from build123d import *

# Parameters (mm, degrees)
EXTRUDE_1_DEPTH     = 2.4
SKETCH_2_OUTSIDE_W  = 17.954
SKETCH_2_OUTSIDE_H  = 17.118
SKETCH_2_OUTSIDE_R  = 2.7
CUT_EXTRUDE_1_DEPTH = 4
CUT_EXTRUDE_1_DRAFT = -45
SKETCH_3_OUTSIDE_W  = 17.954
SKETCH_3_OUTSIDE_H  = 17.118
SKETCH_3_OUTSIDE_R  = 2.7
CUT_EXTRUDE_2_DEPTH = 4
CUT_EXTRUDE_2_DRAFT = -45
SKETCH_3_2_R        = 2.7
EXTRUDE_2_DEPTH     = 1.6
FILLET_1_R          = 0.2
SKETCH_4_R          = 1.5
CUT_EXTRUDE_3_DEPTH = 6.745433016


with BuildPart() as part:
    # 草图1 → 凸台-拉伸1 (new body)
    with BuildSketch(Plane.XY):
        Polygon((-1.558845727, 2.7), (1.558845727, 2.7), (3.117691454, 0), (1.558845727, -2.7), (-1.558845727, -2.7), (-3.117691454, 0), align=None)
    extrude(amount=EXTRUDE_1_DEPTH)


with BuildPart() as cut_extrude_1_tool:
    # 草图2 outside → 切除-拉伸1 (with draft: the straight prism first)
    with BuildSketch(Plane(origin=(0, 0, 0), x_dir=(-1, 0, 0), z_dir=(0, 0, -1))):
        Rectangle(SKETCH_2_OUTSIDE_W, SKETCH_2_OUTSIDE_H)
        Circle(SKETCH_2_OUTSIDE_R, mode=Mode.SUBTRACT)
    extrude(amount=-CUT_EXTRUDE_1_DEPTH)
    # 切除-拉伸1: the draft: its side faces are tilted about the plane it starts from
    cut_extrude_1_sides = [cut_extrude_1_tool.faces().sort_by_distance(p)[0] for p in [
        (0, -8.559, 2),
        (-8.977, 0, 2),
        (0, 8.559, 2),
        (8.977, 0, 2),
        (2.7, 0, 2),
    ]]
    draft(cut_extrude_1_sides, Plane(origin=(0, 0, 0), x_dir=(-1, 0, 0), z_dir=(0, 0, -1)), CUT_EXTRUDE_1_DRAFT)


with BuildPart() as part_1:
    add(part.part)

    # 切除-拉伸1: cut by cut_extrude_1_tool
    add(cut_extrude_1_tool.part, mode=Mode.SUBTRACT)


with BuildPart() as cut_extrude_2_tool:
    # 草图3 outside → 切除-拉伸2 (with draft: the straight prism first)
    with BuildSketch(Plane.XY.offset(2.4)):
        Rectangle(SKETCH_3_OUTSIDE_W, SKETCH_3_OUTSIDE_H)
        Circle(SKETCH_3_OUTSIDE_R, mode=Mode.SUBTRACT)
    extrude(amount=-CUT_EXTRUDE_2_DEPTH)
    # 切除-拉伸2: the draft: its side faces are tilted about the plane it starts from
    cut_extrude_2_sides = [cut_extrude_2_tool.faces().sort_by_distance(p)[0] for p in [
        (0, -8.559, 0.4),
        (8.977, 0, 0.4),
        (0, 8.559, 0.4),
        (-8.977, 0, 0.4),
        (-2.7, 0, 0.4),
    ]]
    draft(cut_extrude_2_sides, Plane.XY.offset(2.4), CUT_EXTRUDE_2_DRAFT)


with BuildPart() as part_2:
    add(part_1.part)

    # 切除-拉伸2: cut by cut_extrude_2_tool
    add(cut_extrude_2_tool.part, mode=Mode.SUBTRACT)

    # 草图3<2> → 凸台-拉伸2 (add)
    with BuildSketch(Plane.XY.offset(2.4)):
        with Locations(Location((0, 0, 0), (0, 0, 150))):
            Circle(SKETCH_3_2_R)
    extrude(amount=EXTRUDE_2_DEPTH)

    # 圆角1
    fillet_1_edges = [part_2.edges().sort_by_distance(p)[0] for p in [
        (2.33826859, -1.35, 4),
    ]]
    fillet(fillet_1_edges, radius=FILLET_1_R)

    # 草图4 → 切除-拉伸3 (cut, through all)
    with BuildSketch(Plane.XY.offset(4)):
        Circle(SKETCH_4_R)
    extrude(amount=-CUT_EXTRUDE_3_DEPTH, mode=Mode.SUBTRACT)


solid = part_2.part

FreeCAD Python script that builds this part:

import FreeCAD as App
import Part
import Sketcher
Q = App.Units.Quantity


def edges_at(feature, points):
    """Names of the edges that pass closest to the given points."""
    edges = feature.Shape.Edges
    near = lambda p: min(range(len(edges)), key=lambda i: edges[i].distToShape(Part.Vertex(*p))[0])
    return sorted({f"Edge{near(p) + 1}" for p in points})


def faces_at(feature, points):
    """Names of the faces that lie closest to the given points."""
    faces = feature.Shape.Faces
    near = lambda p: min(range(len(faces)), key=lambda i: faces[i].distToShape(Part.Vertex(*p))[0])
    return sorted({f"Face{near(p) + 1}" for p in points})

doc = App.newDocument("Part")
body = doc.addObject("PartDesign::Body", "Body")

sketch1 = body.newObject("Sketcher::SketchObject", "Sketch")
sketch1.AttachmentSupport = (doc.getObject("XY_Plane"), [""])
sketch1.MapMode = "FlatFace"
sketch1.addGeometry([
    Part.LineSegment(App.Vector(1.558846, 2.7, 0), App.Vector(-1.558846, 2.7, 0)),
    Part.LineSegment(App.Vector(-1.558846, 2.7, 0), App.Vector(-3.117691, 0, 0)),
    Part.LineSegment(App.Vector(-3.117691, 0, 0), App.Vector(-1.558846, -2.7, 0)),
    Part.LineSegment(App.Vector(-1.558846, -2.7, 0), App.Vector(1.558846, -2.7, 0)),
    Part.LineSegment(App.Vector(1.558846, -2.7, 0), App.Vector(3.117691, 0, 0)),
    Part.LineSegment(App.Vector(3.117691, 0, 0), App.Vector(1.558846, 2.7, 0)),
], False)
sketch1.addConstraint([
    Sketcher.Constraint("Coincident", 0, 2, 1, 1),
    Sketcher.Constraint("Coincident", 1, 2, 2, 1),
    Sketcher.Constraint("Coincident", 2, 2, 3, 1),
    Sketcher.Constraint("Coincident", 3, 2, 4, 1),
    Sketcher.Constraint("Coincident", 4, 2, 5, 1),
    Sketcher.Constraint("Coincident", 5, 2, 0, 1),
    Sketcher.Constraint("Horizontal", 0),
    Sketcher.Constraint("Horizontal", 3),
    Sketcher.Constraint("Symmetric", 0, 2, 3, 2, -1, 1),
    Sketcher.Constraint("Symmetric", 1, 2, 4, 2, -1, 1),
    Sketcher.Constraint("PointOnObject", 1, 2, -1),
    Sketcher.Constraint("Parallel", 2, 5),
    Sketcher.Constraint("Vertical", 0, 2, 2, 2),
    Sketcher.Constraint("Angle", 1, Q("-120 deg")),
    Sketcher.Constraint("DistanceY", -1, 1, 0, 2, 2.7),
    Sketcher.Constraint("DistanceX", 0, 2, 0, 1, 3.117691),
])
pad1 = body.newObject("PartDesign::Pad", "Pad")
pad1.Profile = sketch1
pad1.Length = 2.4
body2 = doc.addObject("PartDesign::Body", "Body001")

sketch2 = body2.newObject("Sketcher::SketchObject", "Sketch001")
sketch2.AttachmentSupport = (doc.getObject("XY_Plane001"), [""])
sketch2.MapMode = "FlatFace"
sketch2.addGeometry([
    Part.LineSegment(App.Vector(8.977, 8.559, 0), App.Vector(8.977, -8.559, 0)),
    Part.LineSegment(App.Vector(8.977, -8.559, 0), App.Vector(-8.977, -8.559, 0)),
    Part.LineSegment(App.Vector(-8.977, -8.559, 0), App.Vector(-8.977, 8.559, 0)),
    Part.LineSegment(App.Vector(-8.977, 8.559, 0), App.Vector(8.977, 8.559, 0)),
    Part.Circle(App.Vector(0, 0, 0), App.Vector(0, 0, 1), 2.7),
], False)
sketch2.addConstraint([
    Sketcher.Constraint("Coincident", 0, 2, 1, 1),
    Sketcher.Constraint("Coincident", 1, 2, 2, 1),
    Sketcher.Constraint("Coincident", 2, 2, 3, 1),
    Sketcher.Constraint("Coincident", 3, 2, 0, 1),
    Sketcher.Constraint("Vertical", 0),
    Sketcher.Constraint("Horizontal", 1),
    Sketcher.Constraint("Vertical", 2),
    Sketcher.Constraint("Horizontal", 3),
    Sketcher.Constraint("Coincident", 4, 3, -1, 1),
    Sketcher.Constraint("Symmetric", 0, 2, 2, 2, -1, 1),
    Sketcher.Constraint("Diameter", 4, 5.4),
    Sketcher.Constraint("DistanceX", 1, 2, 1, 1, 17.954),
    Sketcher.Constraint("DistanceY", 0, 2, 0, 1, 17.118),
])
pad2 = body2.newObject("PartDesign::Pad", "Pad001")
pad2.Profile = sketch2
pad2.Length = 4
doc.recompute()

draft = body2.newObject("PartDesign::Draft", "Draft")
draft.Base = (pad2, faces_at(pad2, [
    (0, -8.559, 2),
    (-8.977, 0, 2),
    (0, 8.559, 2),
    (8.977, 0, 2),
    (2.7, 0, 2),
]))
draft.NeutralPlane = (doc.getObject("XY_Plane001"), [""])
draft.Angle = 45
draft.Reversed = False
doc.recompute()

boolean = body.newObject("PartDesign::Boolean", "Boolean")
boolean.Type = "Cut"
boolean.addObjects([body2])
body3 = doc.addObject("PartDesign::Body", "Body002")

sketch3 = body3.newObject("Sketcher::SketchObject", "Sketch002")
sketch3.AttachmentSupport = (doc.getObject("XY_Plane002"), [""])
sketch3.MapMode = "FlatFace"
sketch3.AttachmentOffset = App.Placement(App.Vector(0, 0, 2.4), App.Rotation())
sketch3.addGeometry([
    Part.LineSegment(App.Vector(-8.977, 8.559, 0), App.Vector(-8.977, -8.559, 0)),
    Part.LineSegment(App.Vector(-8.977, -8.559, 0), App.Vector(8.977, -8.559, 0)),
    Part.LineSegment(App.Vector(8.977, -8.559, 0), App.Vector(8.977, 8.559, 0)),
    Part.LineSegment(App.Vector(8.977, 8.559, 0), App.Vector(-8.977, 8.559, 0)),
    Part.Circle(App.Vector(0, 0, 0), App.Vector(0, 0, 1), 2.7),
], False)
sketch3.addConstraint([
    Sketcher.Constraint("Coincident", 0, 2, 1, 1),
    Sketcher.Constraint("Coincident", 1, 2, 2, 1),
    Sketcher.Constraint("Coincident", 2, 2, 3, 1),
    Sketcher.Constraint("Coincident", 3, 2, 0, 1),
    Sketcher.Constraint("Vertical", 0),
    Sketcher.Constraint("Horizontal", 1),
    Sketcher.Constraint("Vertical", 2),
    Sketcher.Constraint("Horizontal", 3),
    Sketcher.Constraint("Coincident", 4, 3, -1, 1),
    Sketcher.Constraint("Symmetric", 0, 2, 2, 2, -1, 1),
    Sketcher.Constraint("Diameter", 4, 5.4),
    Sketcher.Constraint("DistanceX", 1, 1, 1, 2, 17.954),
    Sketcher.Constraint("DistanceY", 0, 2, 0, 1, 17.118),
])
pad3 = body3.newObject("PartDesign::Pad", "Pad002")
pad3.Profile = sketch3
pad3.Length = 4
pad3.Reversed = True
doc.recompute()

datumplane = body3.newObject("PartDesign::Plane", "DatumPlane")
datumplane.AttachmentSupport = (doc.getObject("XY_Plane002"), [""])
datumplane.MapMode = "FlatFace"
datumplane.AttachmentOffset = App.Placement(App.Vector(0, 0, 2.4), App.Rotation())
draft2 = body3.newObject("PartDesign::Draft", "Draft001")
draft2.Base = (pad3, faces_at(pad3, [
    (0, -8.559, 0.4),
    (8.977, 0, 0.4),
    (0, 8.559, 0.4),
    (-8.977, 0, 0.4),
    (-2.7, 0, 0.4),
]))
draft2.NeutralPlane = (datumplane, [""])
draft2.Angle = 45
draft2.Reversed = True
doc.recompute()

boolean2 = body.newObject("PartDesign::Boolean", "Boolean001")
boolean2.Type = "Cut"
boolean2.addObjects([body3])

sketch4 = body.newObject("Sketcher::SketchObject", "Sketch003")
sketch4.AttachmentSupport = (doc.getObject("XY_Plane"), [""])
sketch4.MapMode = "FlatFace"
sketch4.AttachmentOffset = App.Placement(App.Vector(0, 0, 2.4), App.Rotation())
sketch4.addGeometry(Part.Circle(App.Vector(0, 0, 0), App.Vector(0, 0, 1), 2.7), False)
sketch4.addConstraint([
    Sketcher.Constraint("Coincident", 0, 3, -1, 1),
    Sketcher.Constraint("Diameter", 0, 5.4),
])
pad4 = body.newObject("PartDesign::Pad", "Pad003")
pad4.Profile = sketch4
pad4.Length = 1.6
doc.recompute()

fillet = body.newObject("PartDesign::Fillet", "Fillet")
fillet.Base = (pad4, edges_at(pad4, [(2.338, -1.35, 4)]))
fillet.Radius = 0.2

sketch5 = body.newObject("Sketcher::SketchObject", "Sketch004")
sketch5.AttachmentSupport = (doc.getObject("XY_Plane"), [""])
sketch5.MapMode = "FlatFace"
sketch5.AttachmentOffset = App.Placement(App.Vector(0, 0, 4), App.Rotation())
sketch5.addGeometry(Part.Circle(App.Vector(0, 0, 0), App.Vector(0, 0, 1), 1.5), False)
sketch5.addConstraint([
    Sketcher.Constraint("Coincident", 0, 3, -1, 1),
    Sketcher.Constraint("Diameter", 0, 3.0),
])
pocket1 = body.newObject("PartDesign::Pocket", "Pocket")
pocket1.Profile = sketch5
pocket1.Type = "ThroughAll"

doc.recompute()
